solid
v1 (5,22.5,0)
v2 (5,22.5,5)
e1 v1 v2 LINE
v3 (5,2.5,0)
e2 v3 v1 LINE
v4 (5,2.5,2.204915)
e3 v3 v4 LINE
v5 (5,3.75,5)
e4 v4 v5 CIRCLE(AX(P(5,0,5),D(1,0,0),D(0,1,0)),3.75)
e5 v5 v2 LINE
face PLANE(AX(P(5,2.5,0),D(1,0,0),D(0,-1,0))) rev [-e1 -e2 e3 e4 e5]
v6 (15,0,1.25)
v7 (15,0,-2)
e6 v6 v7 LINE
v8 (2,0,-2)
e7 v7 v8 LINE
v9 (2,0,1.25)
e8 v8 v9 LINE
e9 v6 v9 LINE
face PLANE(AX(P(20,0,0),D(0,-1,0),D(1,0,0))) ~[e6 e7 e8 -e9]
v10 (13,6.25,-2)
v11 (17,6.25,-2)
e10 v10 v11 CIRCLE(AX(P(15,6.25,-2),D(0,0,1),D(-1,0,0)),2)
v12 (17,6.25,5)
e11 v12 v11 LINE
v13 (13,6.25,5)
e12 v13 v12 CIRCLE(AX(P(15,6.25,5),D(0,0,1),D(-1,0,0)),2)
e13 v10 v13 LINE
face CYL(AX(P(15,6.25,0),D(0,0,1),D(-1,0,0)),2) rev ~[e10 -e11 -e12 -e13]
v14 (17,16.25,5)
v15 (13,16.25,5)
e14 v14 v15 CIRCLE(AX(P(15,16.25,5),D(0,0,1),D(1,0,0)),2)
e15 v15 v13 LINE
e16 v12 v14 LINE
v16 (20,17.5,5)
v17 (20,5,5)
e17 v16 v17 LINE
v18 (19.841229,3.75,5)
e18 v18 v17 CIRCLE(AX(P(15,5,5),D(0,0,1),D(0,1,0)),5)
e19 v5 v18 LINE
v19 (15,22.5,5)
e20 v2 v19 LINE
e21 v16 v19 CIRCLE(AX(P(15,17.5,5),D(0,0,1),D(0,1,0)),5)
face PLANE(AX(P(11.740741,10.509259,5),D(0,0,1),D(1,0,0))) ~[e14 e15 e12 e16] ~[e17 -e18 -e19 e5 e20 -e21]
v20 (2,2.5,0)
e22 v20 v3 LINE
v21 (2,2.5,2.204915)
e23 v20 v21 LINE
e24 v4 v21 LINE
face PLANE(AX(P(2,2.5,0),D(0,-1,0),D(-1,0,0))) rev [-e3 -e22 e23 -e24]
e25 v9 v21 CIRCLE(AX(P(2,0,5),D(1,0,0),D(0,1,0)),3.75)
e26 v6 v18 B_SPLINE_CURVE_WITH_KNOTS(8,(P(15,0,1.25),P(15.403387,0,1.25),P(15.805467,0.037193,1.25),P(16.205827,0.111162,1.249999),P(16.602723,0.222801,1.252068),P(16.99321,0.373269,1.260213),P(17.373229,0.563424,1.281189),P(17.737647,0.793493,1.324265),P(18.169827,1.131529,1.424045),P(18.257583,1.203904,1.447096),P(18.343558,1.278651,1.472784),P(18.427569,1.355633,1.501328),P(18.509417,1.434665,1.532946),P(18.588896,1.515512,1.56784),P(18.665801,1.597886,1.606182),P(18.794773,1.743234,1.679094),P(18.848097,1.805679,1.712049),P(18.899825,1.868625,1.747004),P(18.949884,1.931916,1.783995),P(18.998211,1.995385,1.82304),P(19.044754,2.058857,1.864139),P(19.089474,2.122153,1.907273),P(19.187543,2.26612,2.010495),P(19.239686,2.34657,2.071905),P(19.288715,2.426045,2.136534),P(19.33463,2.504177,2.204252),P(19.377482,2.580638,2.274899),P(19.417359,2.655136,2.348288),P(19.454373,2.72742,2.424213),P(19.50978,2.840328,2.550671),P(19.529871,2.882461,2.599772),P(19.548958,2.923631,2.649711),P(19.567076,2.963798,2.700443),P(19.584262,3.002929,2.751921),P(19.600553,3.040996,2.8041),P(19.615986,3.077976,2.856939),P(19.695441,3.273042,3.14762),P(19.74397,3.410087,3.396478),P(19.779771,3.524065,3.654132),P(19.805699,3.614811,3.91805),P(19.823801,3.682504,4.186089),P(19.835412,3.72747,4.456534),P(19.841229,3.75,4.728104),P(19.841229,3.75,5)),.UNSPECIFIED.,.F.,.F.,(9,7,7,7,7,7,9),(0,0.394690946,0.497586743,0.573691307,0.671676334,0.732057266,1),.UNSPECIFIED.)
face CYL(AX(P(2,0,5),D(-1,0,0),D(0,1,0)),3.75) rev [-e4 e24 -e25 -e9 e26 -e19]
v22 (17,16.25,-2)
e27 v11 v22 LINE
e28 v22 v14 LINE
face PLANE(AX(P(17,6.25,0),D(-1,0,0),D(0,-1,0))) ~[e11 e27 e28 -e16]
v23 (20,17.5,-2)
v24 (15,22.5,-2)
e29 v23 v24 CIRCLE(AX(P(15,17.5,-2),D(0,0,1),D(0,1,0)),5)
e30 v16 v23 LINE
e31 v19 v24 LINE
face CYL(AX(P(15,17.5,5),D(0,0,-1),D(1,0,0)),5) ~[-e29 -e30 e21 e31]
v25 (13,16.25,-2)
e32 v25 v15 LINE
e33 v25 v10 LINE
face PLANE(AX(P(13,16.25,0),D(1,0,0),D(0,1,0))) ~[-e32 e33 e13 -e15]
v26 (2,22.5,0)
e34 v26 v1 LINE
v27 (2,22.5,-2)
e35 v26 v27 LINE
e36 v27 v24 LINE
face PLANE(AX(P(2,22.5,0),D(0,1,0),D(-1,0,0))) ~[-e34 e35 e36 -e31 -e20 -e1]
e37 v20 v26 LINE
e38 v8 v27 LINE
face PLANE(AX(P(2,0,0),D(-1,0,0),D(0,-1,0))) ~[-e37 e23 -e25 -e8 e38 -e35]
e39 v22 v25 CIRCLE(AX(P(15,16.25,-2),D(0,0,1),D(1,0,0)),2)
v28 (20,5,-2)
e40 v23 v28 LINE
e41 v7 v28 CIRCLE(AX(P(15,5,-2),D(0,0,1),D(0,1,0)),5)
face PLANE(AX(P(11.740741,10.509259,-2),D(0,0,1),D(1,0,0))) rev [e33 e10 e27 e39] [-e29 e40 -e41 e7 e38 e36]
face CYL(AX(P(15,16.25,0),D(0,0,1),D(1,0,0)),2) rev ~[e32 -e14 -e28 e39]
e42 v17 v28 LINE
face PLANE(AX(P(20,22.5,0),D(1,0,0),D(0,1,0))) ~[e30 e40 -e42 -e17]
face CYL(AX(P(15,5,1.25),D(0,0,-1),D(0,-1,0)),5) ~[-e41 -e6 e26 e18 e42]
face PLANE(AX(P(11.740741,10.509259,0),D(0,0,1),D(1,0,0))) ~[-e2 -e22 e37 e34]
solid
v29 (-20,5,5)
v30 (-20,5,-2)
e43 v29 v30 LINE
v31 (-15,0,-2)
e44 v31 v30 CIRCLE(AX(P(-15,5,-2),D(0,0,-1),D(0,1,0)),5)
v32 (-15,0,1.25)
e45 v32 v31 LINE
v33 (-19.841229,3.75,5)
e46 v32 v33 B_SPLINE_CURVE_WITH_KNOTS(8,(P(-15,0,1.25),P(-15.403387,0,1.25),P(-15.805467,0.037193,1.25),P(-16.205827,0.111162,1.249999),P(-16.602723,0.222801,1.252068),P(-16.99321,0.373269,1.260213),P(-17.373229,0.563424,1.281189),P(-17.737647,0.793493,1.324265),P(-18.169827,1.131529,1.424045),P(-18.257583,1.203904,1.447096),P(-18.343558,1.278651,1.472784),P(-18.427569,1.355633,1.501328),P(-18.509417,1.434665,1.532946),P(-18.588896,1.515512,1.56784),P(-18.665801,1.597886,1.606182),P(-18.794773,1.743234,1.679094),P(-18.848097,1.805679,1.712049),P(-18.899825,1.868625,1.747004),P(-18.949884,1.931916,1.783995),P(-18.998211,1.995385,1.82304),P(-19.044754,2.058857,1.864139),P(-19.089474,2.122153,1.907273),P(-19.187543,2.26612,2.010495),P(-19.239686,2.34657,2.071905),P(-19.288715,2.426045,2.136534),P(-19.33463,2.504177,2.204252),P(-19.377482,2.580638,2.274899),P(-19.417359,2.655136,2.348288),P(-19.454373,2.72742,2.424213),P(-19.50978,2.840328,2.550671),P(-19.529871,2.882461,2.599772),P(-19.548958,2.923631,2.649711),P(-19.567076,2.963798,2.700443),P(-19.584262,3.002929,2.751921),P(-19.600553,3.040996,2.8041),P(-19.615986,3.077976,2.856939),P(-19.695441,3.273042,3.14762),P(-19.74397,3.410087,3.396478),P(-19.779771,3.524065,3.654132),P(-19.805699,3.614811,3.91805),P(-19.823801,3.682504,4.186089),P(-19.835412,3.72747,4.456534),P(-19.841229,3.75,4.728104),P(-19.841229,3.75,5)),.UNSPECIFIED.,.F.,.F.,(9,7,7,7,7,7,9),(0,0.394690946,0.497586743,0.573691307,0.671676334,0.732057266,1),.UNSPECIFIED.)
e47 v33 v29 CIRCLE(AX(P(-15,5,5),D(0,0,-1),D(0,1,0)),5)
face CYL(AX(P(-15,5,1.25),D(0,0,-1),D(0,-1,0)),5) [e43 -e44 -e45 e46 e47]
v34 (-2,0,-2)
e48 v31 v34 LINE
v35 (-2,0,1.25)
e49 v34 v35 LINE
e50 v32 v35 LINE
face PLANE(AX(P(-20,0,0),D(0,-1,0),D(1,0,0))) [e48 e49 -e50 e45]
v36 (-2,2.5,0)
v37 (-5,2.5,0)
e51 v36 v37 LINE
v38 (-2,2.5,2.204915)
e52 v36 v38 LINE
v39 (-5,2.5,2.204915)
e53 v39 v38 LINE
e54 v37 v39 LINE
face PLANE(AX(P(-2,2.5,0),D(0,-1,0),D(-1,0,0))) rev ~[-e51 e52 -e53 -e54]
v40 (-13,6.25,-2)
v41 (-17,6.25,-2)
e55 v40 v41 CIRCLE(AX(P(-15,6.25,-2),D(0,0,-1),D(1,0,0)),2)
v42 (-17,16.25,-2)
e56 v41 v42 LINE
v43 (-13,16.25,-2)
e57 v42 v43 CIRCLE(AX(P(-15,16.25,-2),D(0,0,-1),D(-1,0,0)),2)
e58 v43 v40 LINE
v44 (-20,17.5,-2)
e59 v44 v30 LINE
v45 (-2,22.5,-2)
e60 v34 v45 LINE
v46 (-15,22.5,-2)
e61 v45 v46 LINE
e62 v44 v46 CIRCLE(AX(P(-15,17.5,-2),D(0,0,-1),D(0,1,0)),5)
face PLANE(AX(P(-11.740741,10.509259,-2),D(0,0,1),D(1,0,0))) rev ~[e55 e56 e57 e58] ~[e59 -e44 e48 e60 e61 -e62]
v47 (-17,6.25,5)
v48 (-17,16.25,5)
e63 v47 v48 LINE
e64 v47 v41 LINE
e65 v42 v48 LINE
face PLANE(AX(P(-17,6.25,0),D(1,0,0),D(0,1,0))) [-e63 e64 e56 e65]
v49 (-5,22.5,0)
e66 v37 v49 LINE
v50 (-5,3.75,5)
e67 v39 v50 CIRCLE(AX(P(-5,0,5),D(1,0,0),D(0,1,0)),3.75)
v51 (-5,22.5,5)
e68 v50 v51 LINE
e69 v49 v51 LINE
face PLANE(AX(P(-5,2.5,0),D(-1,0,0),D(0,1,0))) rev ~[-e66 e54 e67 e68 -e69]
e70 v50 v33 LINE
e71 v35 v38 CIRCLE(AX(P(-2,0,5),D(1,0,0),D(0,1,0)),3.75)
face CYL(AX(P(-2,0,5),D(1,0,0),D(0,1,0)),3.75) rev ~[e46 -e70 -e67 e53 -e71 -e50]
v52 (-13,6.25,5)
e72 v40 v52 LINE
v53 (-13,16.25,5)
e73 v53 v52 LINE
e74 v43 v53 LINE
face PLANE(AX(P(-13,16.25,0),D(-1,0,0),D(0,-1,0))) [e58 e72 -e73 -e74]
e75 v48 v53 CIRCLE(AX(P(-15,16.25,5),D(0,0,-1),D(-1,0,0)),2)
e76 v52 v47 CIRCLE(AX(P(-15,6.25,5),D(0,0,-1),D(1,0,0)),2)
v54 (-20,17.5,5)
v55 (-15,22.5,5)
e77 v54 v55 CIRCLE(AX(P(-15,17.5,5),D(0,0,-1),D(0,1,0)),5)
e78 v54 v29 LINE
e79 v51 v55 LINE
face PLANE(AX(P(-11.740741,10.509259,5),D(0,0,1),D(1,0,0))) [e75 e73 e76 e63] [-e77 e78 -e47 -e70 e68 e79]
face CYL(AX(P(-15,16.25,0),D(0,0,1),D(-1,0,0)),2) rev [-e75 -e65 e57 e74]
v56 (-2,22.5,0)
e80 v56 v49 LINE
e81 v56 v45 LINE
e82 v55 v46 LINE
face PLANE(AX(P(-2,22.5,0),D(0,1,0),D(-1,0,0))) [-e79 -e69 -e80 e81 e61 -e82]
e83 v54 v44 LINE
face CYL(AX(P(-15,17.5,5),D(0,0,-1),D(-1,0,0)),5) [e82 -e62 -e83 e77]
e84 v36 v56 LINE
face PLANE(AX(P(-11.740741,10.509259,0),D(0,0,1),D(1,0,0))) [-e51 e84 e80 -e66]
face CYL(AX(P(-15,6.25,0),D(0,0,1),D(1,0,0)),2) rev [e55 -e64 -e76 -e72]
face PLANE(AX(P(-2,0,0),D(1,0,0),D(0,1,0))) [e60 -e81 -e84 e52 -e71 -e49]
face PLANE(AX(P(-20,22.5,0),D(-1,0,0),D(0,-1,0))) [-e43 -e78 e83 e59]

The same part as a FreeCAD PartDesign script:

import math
import FreeCAD as App
import Part
import Sketcher

V = App.Vector


def edges_at(feature, points):
    """Names of the edges that pass closest to the given points."""
    edges = feature.Shape.Edges
    near = lambda p: min(range(len(edges)), key=lambda i: edges[i].distToShape(Part.Vertex(*p))[0])
    return sorted({f"Edge{near(p) + 1}" for p in points})


def add_polygon(sketch, points):
    """Adds a closed chain of lines whose ends are joined by coincident constraints."""
    first, n = sketch.GeometryCount, len(points)
    for a, b in zip(points, points[1:] + points[:1]):
        sketch.addGeometry(Part.LineSegment(App.Vector(*a, 0), App.Vector(*b, 0)), False)
    for i in range(n):
        sketch.addConstraint(Sketcher.Constraint("Coincident", first + i, 2, first + (i + 1) % n, 1))

doc = App.newDocument("Part")
body = doc.addObject("PartDesign::Body", "Body")

# Sketch on XY plane
sketch1 = doc.addObject("Sketcher::SketchObject", "Sketch")
body.addObject(sketch1)
sketch1.AttachmentSupport = (doc.XY_Plane, [""])
sketch1.MapMode = "FlatFace"
add_polygon(sketch1, [(-20, 0), (-2, 0), (-2, 2.5), (-5, 2.5), (-5, 22.5), (-20, 22.5)])  # lines 0-5
sketch1.addGeometry(Part.LineSegment(V(-17, 6.2, 0), V(-17, 16.2, 0)), False)  # 6
sketch1.addGeometry(Part.ArcOfCircle(Part.Circle(V(-15, 16.2, 0), V(0, 0, 1), 2), math.radians(0), math.radians(180)), False)  # 7
sketch1.addGeometry(Part.LineSegment(V(-13, 16.2, 0), V(-13, 6.2, 0)), False)  # 8
sketch1.addGeometry(Part.ArcOfCircle(Part.Circle(V(-15, 6.2, 0), V(0, 0, 1), 2), math.radians(180), math.radians(360)), False)  # 9
sketch1.addConstraint([
    Sketcher.Constraint("Tangent", 6, 2, 7, 2),
    Sketcher.Constraint("Tangent", 7, 1, 8, 1),
    Sketcher.Constraint("Tangent", 8, 2, 9, 2),
    Sketcher.Constraint("Tangent", 9, 1, 6, 1),
    Sketcher.Constraint("Horizontal", 0),
    Sketcher.Constraint("Vertical", 1),
    Sketcher.Constraint("Horizontal", 2),
    Sketcher.Constraint("Vertical", 3),
    Sketcher.Constraint("Horizontal", 4),
    Sketcher.Constraint("Vertical", 5),
    Sketcher.Constraint("Vertical", 6),
    Sketcher.Constraint("Vertical", 8),
    Sketcher.Constraint("PointOnObject", 0, 2, -1),
    Sketcher.Constraint("Radius", 7, 2.0),
    Sketcher.Constraint("DistanceX", 0, 1, 0, 2, 18.0),
    Sketcher.Constraint("DistanceX", 2, 2, 2, 1, 3.0),
    Sketcher.Constraint("DistanceY", 3, 1, 3, 2, 20.0),
    Sketcher.Constraint("DistanceY", 6, 1, 6, 2, 10.0),
    Sketcher.Constraint("DistanceY", 1, 1, 1, 2, 2.5),
    Sketcher.Constraint("DistanceX", 7, 3, -1, 1, 15.0),
    Sketcher.Constraint("DistanceX", 0, 2, -1, 1, 2.0),
    Sketcher.Constraint("DistanceY", -1, 1, 7, 3, 16.25),
])
pad1 = doc.addObject("PartDesign::Pad", "Pad")
body.addObject(pad1)
pad1.Profile = sketch1
pad1.Length = 5

# Sketch on XY plane
sketch2 = doc.addObject("Sketcher::SketchObject", "Sketch001")
body.addObject(sketch2)
sketch2.AttachmentSupport = (doc.XY_Plane, [""])
sketch2.MapMode = "FlatFace"
add_polygon(sketch2, [(-20, 0), (-2, 0), (-2, 22.5), (-20, 22.5)])  # lines 0-3
sketch2.addGeometry(Part.LineSegment(V(-17, 6.2, 0), V(-17, 16.2, 0)), False)  # 4
sketch2.addGeometry(Part.ArcOfCircle(Part.Circle(V(-15, 16.2, 0), V(0, 0, 1), 2), math.radians(0), math.radians(180)), False)  # 5
sketch2.addGeometry(Part.LineSegment(V(-13, 16.2, 0), V(-13, 6.2, 0)), False)  # 6
sketch2.addGeometry(Part.ArcOfCircle(Part.Circle(V(-15, 6.2, 0), V(0, 0, 1), 2), math.radians(180), math.radians(360)), False)  # 7
sketch2.addConstraint([
    Sketcher.Constraint("Tangent", 4, 2, 5, 2),
    Sketcher.Constraint("Tangent", 5, 1, 6, 1),
    Sketcher.Constraint("Tangent", 6, 2, 7, 2),
    Sketcher.Constraint("Tangent", 7, 1, 4, 1),
    Sketcher.Constraint("Horizontal", 0),
    Sketcher.Constraint("Vertical", 1),
    Sketcher.Constraint("Horizontal", 2),
    Sketcher.Constraint("Vertical", 3),
    Sketcher.Constraint("Vertical", 4),
    Sketcher.Constraint("Vertical", 6),
    Sketcher.Constraint("PointOnObject", 0, 2, -1),
    Sketcher.Constraint("Radius", 5, 2.0),
    Sketcher.Constraint("DistanceX", 0, 1, 0, 2, 18.0),
    Sketcher.Constraint("DistanceY", 4, 1, 4, 2, 10.0),
    Sketcher.Constraint("DistanceY", 1, 1, 1, 2, 22.5),
    Sketcher.Constraint("DistanceX", 5, 3, -1, 1, 15.0),
    Sketcher.Constraint("DistanceX", 0, 2, -1, 1, 2.0),
    Sketcher.Constraint("DistanceY", -1, 1, 5, 3, 16.25),
])
pad2 = doc.addObject("PartDesign::Pad", "Pad001")
body.addObject(pad2)
pad2.Profile = sketch2
pad2.Length = 2
pad2.Reversed = True

# Sketch on YZ plane
sketch3 = doc.addObject("Sketcher::SketchObject", "Sketch002")
body.addObject(sketch3)
sketch3.AttachmentSupport = (doc.YZ_Plane, [""])
sketch3.MapMode = "FlatFace"
sketch3.AttachmentOffset = App.Placement(V(0, 0, -2), App.Rotation())
sketch3.addGeometry(Part.Circle(V(0, 5, 0), V(0, 0, 1), 3.8), False)
sketch3.addConstraint([
    Sketcher.Constraint("PointOnObject", 0, 3, -2),
    Sketcher.Constraint("Diameter", 0, 7.5),
    Sketcher.Constraint("DistanceY", -1, 1, 0, 3, 5.0),
])
pocket1 = doc.addObject("PartDesign::Pocket", "Pocket")
body.addObject(pocket1)
pocket1.Profile = sketch3
pocket1.Length = 25
doc.recompute()

fillet = doc.addObject("PartDesign::Fillet", "Fillet")
body.addObject(fillet)
fillet.Base = (pocket1, edges_at(pocket1, [(-20, 0, -0.375), (-20, 22.5, 1.5)]))
fillet.Radius = 5
body2 = doc.addObject("PartDesign::Body", "Body001")
doc.recompute()

mirroring = doc.addObject("Part::Mirroring", "Mirroring")
mirroring.Source = body
mirroring.Base = V(0, 0, 0)
mirroring.Normal = V(1, 0, 0)
body2.BaseFeature = mirroring
doc.recompute()
mirroring.Visibility = False

doc.recompute()
